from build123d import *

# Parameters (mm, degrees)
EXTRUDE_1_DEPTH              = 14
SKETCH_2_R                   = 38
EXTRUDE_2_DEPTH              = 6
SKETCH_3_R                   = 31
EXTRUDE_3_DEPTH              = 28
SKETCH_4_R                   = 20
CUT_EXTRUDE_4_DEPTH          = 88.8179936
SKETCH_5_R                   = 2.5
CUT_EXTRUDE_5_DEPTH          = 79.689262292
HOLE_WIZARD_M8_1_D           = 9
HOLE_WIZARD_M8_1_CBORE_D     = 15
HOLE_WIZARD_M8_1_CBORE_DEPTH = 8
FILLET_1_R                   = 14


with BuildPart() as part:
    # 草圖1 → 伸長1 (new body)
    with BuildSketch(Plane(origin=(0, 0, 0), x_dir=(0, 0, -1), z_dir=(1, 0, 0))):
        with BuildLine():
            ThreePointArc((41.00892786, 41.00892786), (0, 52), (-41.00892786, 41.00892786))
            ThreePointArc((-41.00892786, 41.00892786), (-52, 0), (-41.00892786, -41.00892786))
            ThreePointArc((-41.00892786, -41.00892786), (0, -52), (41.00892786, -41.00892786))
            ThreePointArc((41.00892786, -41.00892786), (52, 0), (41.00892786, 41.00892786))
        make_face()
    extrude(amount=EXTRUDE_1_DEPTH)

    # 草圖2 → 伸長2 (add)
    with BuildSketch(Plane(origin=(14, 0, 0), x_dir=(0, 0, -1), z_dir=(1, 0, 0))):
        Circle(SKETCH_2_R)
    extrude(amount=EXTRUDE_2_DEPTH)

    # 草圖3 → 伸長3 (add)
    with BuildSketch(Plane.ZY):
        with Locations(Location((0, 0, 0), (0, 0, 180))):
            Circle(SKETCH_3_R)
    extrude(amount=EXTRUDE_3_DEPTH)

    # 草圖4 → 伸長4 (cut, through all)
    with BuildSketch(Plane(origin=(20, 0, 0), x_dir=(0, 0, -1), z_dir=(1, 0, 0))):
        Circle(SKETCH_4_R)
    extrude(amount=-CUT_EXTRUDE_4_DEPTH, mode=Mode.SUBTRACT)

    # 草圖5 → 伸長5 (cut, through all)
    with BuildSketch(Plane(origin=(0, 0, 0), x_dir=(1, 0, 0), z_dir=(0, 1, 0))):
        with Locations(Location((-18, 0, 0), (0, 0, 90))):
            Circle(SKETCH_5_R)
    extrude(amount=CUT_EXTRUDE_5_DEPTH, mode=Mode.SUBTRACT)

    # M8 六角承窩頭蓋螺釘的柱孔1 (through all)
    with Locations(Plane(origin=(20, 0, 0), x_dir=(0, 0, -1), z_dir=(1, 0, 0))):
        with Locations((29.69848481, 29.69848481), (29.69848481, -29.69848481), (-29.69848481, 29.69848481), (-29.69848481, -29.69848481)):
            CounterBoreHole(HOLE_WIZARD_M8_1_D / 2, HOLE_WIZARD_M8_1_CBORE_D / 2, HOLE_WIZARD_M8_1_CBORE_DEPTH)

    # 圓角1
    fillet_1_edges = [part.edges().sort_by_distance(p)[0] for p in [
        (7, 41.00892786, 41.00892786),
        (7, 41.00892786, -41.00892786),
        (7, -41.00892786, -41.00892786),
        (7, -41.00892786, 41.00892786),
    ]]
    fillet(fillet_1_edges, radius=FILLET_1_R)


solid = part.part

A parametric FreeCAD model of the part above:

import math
import FreeCAD as App
import Part
import Sketcher
Q = App.Units.Quantity


def edges_at(feature, points):
    """Names of the edges that pass closest to the given points."""
    edges = feature.Shape.Edges
    near = lambda p: min(range(len(edges)), key=lambda i: edges[i].distToShape(Part.Vertex(*p))[0])
    return sorted({f"Edge{near(p) + 1}" for p in points})

doc = App.newDocument("Part")
body = doc.addObject("PartDesign::Body", "Body")

# Sketch on YZ plane
sketch1 = body.newObject("Sketcher::SketchObject", "Sketch")
sketch1.AttachmentSupport = (doc.getObject("YZ_Plane"), [""])
sketch1.MapMode = "FlatFace"
sketch1.addGeometry([
    Part.ArcOfCircle(Part.Circle(App.Vector(-30, 0, 0), App.Vector(0, 0, 1), 82), math.radians(-30), math.radians(30)),
    Part.ArcOfCircle(Part.Circle(App.Vector(0, -30, 0), App.Vector(0, 0, 1), 82), math.radians(60), math.radians(120)),
    Part.ArcOfCircle(Part.Circle(App.Vector(30, 0, 0), App.Vector(0, 0, 1), 82), math.radians(150), math.radians(210)),
    Part.ArcOfCircle(Part.Circle(App.Vector(0, 30, 0), App.Vector(0, 0, 1), 82), math.radians(-120), math.radians(-60)),
], False)
sketch1.addConstraint([
    Sketcher.Constraint("Coincident", 0, 2, 1, 1),
    Sketcher.Constraint("Coincident", 1, 2, 2, 1),
    Sketcher.Constraint("Coincident", 2, 2, 3, 1),
    Sketcher.Constraint("Coincident", 3, 2, 0, 1),
    Sketcher.Constraint("Equal", 0, 1),
    Sketcher.Constraint("Equal", 1, 2),
    Sketcher.Constraint("Equal", 2, 3),
    Sketcher.Constraint("Symmetric", 0, 3, 2, 3, -1, 1),
    Sketcher.Constraint("Symmetric", 1, 3, 3, 3, -1, 1),
    Sketcher.Constraint("Symmetric", 0, 2, 1, 2, -2),
    Sketcher.Constraint("Radius", 0, Q("82 mm")),
    Sketcher.Constraint("DistanceX", 0, 3, -1, 1, Q("30 mm")),
    Sketcher.Constraint("DistanceY", 1, 3, -1, 1, Q("30 mm")),
])
pad1 = body.newObject("PartDesign::Pad", "Pad")
pad1.Profile = sketch1
pad1.Length = 14

# Sketch on YZ plane
sketch2 = body.newObject("Sketcher::SketchObject", "Sketch001")
sketch2.AttachmentSupport = (doc.getObject("YZ_Plane"), [""])
sketch2.MapMode = "FlatFace"
sketch2.AttachmentOffset = App.Placement(App.Vector(0, 0, 14), App.Rotation())
sketch2.addGeometry(Part.Circle(App.Vector(0, 0, 0), App.Vector(0, 0, 1), 38), False)
sketch2.addConstraint([
    Sketcher.Constraint("Coincident", 0, 3, -1, 1),
    Sketcher.Constraint("Diameter", 0, Q("76 mm")),
])
pad2 = body.newObject("PartDesign::Pad", "Pad001")
pad2.Profile = sketch2
pad2.Length = 6

# Sketch on YZ plane
sketch3 = body.newObject("Sketcher::SketchObject", "Sketch002")
sketch3.AttachmentSupport = (doc.getObject("YZ_Plane"), [""])
sketch3.MapMode = "FlatFace"
sketch3.addGeometry(Part.Circle(App.Vector(0, 0, 0), App.Vector(0, 0, 1), 31), False)
sketch3.addConstraint([
    Sketcher.Constraint("Coincident", 0, 3, -1, 1),
    Sketcher.Constraint("Diameter", 0, Q("62 mm")),
])
pad3 = body.newObject("PartDesign::Pad", "Pad002")
pad3.Profile = sketch3
pad3.Length = 28
pad3.Reversed = True

# Sketch on YZ plane
sketch4 = body.newObject("Sketcher::SketchObject", "Sketch003")
sketch4.AttachmentSupport = (doc.getObject("YZ_Plane"), [""])
sketch4.MapMode = "FlatFace"
sketch4.AttachmentOffset = App.Placement(App.Vector(0, 0, 20), App.Rotation())
sketch4.addGeometry(Part.Circle(App.Vector(0, 0, 0), App.Vector(0, 0, 1), 20), False)
sketch4.addConstraint([
    Sketcher.Constraint("Coincident", 0, 3, -1, 1),
    Sketcher.Constraint("Diameter", 0, Q("40 mm")),
])
pocket1 = body.newObject("PartDesign::Pocket", "Pocket")
pocket1.Profile = sketch4
pocket1.Type = "ThroughAll"

# Sketch on XZ plane
sketch5 = body.newObject("Sketcher::SketchObject", "Sketch004")
sketch5.AttachmentSupport = (doc.getObject("XZ_Plane"), [""])
sketch5.MapMode = "FlatFace"
sketch5.addGeometry(Part.Circle(App.Vector(-18, 0, 0), App.Vector(0, 0, 1), 2.5), False)
sketch5.addConstraint([
    Sketcher.Constraint("PointOnObject", 0, 3, -1),
    Sketcher.Constraint("Diameter", 0, Q("5 mm")),
    Sketcher.Constraint("DistanceX", 0, 3, -1, 1, Q("18 mm")),
])
pocket2 = body.newObject("PartDesign::Pocket", "Pocket001")
pocket2.Profile = sketch5
pocket2.Type = "ThroughAll"

# Sketch on YZ plane
sketch6 = body.newObject("Sketcher::SketchObject", "Sketch005")
sketch6.AttachmentSupport = (doc.getObject("YZ_Plane"), [""])
sketch6.MapMode = "FlatFace"
sketch6.AttachmentOffset = App.Placement(App.Vector(0, 0, 20), App.Rotation())
sketch6.addGeometry([
    Part.Circle(App.Vector(29.7, -29.7, 0), App.Vector(0, 0, 1), 4.5),
    Part.Circle(App.Vector(-29.7, -29.7, 0), App.Vector(0, 0, 1), 4.5),
    Part.Circle(App.Vector(29.7, 29.7, 0), App.Vector(0, 0, 1), 4.5),
    Part.Circle(App.Vector(-29.7, 29.7, 0), App.Vector(0, 0, 1), 4.5),
], False)
sketch6.addConstraint([
    Sketcher.Constraint("Equal", 0, 1),
    Sketcher.Constraint("Equal", 1, 2),
    Sketcher.Constraint("Equal", 2, 3),
    Sketcher.Constraint("Symmetric", 1, 3, 2, 3, -1, 1),
    Sketcher.Constraint("Symmetric", 0, 3, 3, 3, -1, 1),
    Sketcher.Constraint("Symmetric", 0, 3, 1, 3, -2),
    Sketcher.Constraint("Diameter", 0, Q("9 mm")),
    Sketcher.Constraint("DistanceX", 1, 3, 0, 3, Q("59.39697 mm")),
    Sketcher.Constraint("DistanceY", 0, 3, 2, 3, Q("59.39697 mm")),
])
doc.recompute()
hole = body.newObject("PartDesign::Hole", "Hole")
hole.Profile = sketch6
hole.ThreadType = "None"
hole.Diameter = 9
hole.DepthType = "ThroughAll"
hole.HoleCutType = "Counterbore"
hole.HoleCutDiameter = 15
hole.HoleCutDepth = 8
doc.recompute()

fillet = body.newObject("PartDesign::Fillet", "Fillet")
fillet.Base = (hole, edges_at(hole, [
    (7, 41.009, 41.009),
    (7, 41.009, -41.009),
    (7, -41.009, -41.009),
    (7, -41.009, 41.009),
]))
fillet.Radius = 14

doc.recompute()
